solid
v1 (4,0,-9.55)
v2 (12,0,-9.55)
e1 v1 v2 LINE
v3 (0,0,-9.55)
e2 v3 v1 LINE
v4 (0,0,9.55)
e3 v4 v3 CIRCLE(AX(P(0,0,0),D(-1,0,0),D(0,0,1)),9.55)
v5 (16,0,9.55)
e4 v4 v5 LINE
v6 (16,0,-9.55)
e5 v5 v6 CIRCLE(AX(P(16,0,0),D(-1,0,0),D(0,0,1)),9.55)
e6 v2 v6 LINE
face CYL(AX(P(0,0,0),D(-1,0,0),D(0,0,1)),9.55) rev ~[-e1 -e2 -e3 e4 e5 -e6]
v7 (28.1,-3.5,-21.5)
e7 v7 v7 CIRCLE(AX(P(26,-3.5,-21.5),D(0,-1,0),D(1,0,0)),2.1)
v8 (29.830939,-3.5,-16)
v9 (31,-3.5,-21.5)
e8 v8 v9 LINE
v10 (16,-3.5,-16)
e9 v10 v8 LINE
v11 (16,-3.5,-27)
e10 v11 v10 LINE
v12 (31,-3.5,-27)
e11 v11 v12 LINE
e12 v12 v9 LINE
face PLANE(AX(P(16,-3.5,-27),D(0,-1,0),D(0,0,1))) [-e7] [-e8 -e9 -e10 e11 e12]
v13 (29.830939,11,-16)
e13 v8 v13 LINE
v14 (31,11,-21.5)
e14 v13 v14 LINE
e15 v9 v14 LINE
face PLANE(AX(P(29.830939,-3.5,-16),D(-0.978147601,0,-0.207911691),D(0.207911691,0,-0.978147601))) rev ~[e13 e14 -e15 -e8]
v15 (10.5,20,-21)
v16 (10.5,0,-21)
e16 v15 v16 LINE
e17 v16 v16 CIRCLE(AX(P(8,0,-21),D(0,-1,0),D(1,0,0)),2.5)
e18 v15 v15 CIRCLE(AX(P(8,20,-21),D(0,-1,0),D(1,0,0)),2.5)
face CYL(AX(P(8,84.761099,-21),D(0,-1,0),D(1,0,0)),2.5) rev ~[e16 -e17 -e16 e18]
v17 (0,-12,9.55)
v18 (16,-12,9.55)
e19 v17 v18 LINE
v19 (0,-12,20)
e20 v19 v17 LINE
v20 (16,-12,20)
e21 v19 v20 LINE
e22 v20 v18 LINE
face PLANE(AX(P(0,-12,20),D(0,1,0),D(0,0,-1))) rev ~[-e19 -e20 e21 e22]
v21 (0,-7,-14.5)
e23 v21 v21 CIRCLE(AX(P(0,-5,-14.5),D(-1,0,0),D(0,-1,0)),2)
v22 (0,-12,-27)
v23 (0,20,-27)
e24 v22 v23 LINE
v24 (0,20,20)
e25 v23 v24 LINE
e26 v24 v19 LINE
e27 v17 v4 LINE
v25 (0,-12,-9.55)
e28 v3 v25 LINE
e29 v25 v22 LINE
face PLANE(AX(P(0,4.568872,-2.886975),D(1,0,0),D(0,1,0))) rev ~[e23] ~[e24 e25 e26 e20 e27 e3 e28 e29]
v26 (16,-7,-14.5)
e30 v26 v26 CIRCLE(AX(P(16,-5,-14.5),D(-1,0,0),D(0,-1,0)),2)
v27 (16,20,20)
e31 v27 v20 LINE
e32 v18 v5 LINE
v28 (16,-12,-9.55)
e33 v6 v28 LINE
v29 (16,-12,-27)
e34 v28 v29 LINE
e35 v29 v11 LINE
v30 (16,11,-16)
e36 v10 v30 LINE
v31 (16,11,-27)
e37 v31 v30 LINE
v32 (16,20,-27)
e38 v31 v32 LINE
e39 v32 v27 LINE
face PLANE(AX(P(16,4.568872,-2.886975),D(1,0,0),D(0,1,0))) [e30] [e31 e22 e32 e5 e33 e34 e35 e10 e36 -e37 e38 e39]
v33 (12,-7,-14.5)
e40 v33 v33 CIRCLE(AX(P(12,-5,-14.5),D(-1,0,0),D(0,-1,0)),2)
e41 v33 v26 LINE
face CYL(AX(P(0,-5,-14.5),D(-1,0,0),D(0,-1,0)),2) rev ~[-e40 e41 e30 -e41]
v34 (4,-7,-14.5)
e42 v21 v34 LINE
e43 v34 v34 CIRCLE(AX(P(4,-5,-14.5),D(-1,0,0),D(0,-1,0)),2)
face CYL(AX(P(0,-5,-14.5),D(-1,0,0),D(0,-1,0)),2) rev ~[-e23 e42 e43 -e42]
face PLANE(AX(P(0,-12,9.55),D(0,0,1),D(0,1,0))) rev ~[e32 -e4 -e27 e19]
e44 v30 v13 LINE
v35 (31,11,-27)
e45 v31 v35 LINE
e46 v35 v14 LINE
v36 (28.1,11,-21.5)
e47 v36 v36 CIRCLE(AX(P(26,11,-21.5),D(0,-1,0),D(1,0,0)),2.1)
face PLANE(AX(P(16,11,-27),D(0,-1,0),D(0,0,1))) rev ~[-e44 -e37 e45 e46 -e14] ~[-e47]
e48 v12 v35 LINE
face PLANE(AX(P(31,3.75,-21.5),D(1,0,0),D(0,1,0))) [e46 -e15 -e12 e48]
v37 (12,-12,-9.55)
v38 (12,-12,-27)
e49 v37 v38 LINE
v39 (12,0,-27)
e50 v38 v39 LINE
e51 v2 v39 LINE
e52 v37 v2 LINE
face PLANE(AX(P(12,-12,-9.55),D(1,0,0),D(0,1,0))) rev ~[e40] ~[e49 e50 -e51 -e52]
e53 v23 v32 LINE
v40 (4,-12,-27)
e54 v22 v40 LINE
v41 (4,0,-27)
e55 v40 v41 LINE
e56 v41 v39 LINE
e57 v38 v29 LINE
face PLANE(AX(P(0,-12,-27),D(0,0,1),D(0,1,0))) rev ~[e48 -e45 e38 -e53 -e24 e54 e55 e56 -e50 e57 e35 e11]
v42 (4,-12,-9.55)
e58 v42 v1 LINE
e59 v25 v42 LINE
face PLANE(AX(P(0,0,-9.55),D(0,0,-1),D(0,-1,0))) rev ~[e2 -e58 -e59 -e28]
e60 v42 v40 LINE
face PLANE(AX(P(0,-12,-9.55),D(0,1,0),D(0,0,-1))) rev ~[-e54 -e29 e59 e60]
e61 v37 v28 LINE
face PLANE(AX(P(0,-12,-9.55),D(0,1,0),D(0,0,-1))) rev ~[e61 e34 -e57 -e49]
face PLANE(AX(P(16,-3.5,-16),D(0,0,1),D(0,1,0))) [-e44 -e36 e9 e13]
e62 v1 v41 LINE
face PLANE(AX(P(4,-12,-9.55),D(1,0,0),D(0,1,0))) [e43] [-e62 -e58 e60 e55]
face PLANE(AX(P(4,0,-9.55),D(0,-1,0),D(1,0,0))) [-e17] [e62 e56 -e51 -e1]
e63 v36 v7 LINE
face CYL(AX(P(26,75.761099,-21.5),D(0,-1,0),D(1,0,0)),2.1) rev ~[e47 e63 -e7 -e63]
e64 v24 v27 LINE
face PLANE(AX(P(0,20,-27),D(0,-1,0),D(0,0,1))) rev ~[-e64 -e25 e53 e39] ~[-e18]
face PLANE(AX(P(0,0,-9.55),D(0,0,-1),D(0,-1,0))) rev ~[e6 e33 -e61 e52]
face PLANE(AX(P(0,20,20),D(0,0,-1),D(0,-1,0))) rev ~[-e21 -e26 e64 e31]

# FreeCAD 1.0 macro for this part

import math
import FreeCAD as App
import Part
import Sketcher

V = App.Vector
Q = App.Units.Quantity

doc = App.newDocument("Part")
body = doc.addObject("PartDesign::Body", "Body")

sketch1 = body.newObject("Sketcher::SketchObject", "Sketch")
sketch1.AttachmentSupport = (doc.getObject("YZ_Plane"), [""])
sketch1.MapMode = "FlatFace"
sketch1.addGeometry(Part.ArcOfCircle(Part.Circle(V(0, 0, 0), V(0, 0, 1), 10), math.radians(-90), math.radians(90)), False)
sketch1.addGeometry(Part.LineSegment(V(0, -10, 0), V(-12, -10, 0)), False)
sketch1.addGeometry(Part.LineSegment(V(-12, -10, 0), V(-12, -27, 0)), False)
sketch1.addGeometry(Part.LineSegment(V(-12, -27, 0), V(20, -27, 0)), False)
sketch1.addGeometry(Part.LineSegment(V(20, -27, 0), V(20, 20, 0)), False)
sketch1.addGeometry(Part.LineSegment(V(20, 20, 0), V(-12, 20, 0)), False)
sketch1.addGeometry(Part.LineSegment(V(-12, 20, 0), V(-12, 10, 0)), False)
sketch1.addGeometry(Part.LineSegment(V(-12, 10, 0), V(0, 10, 0)), False)
sketch1.addConstraint(Sketcher.Constraint("Tangent", 0, 1, 1, 1))
sketch1.addConstraint(Sketcher.Constraint("Coincident", 1, 2, 2, 1))
sketch1.addConstraint(Sketcher.Constraint("Coincident", 2, 2, 3, 1))
sketch1.addConstraint(Sketcher.Constraint("Coincident", 3, 2, 4, 1))
sketch1.addConstraint(Sketcher.Constraint("Coincident", 4, 2, 5, 1))
sketch1.addConstraint(Sketcher.Constraint("Coincident", 5, 2, 6, 1))
sketch1.addConstraint(Sketcher.Constraint("Coincident", 6, 2, 7, 1))
sketch1.addConstraint(Sketcher.Constraint("Tangent", 7, 2, 0, 2))
sketch1.addConstraint(Sketcher.Constraint("Horizontal", 1))
sketch1.addConstraint(Sketcher.Constraint("Vertical", 2))
sketch1.addConstraint(Sketcher.Constraint("Horizontal", 3))
sketch1.addConstraint(Sketcher.Constraint("Vertical", 4))
sketch1.addConstraint(Sketcher.Constraint("Horizontal", 5))
sketch1.addConstraint(Sketcher.Constraint("Vertical", 6))
sketch1.addConstraint(Sketcher.Constraint("Horizontal", 7))
sketch1.addConstraint(Sketcher.Constraint("Coincident", 0, 3, -1, 1))
sketch1.addConstraint(Sketcher.Constraint("Vertical", 2, 2, 5, 2))
sketch1.addConstraint(Sketcher.Constraint("DistanceX", 1, 2, 1, 1, Q("12 mm")))
sketch1.addConstraint(Sketcher.Constraint("DistanceX", 3, 1, 3, 2, Q("32 mm")))
sketch1.addConstraint(Sketcher.Constraint("DistanceY", 4, 1, 4, 2, Q("47 mm")))
sketch1.addConstraint(Sketcher.Constraint("Radius", 0, Q("9.55 mm")))
sketch1.addConstraint(Sketcher.Constraint("DistanceY", 2, 2, -1, 1, Q("27 mm")))
pad1 = body.newObject("PartDesign::Pad", "Pad")
pad1.Profile = sketch1
pad1.Length = 16

sketch2 = body.newObject("Sketcher::SketchObject", "Sketch001")
sketch2.AttachmentSupport = (doc.getObject("YZ_Plane"), [""])
sketch2.MapMode = "FlatFace"
sketch2.AttachmentOffset = App.Placement(V(0, 0, 16), App.Rotation())
sketch2.addGeometry(Part.LineSegment(V(-4, -16, 0), V(-4, -27, 0)), False)
sketch2.addGeometry(Part.LineSegment(V(-4, -27, 0), V(11, -27, 0)), False)
sketch2.addGeometry(Part.LineSegment(V(11, -27, 0), V(11, -16, 0)), False)
sketch2.addGeometry(Part.LineSegment(V(11, -16, 0), V(-4, -16, 0)), False)
sketch2.addConstraint(Sketcher.Constraint("Coincident", 0, 2, 1, 1))
sketch2.addConstraint(Sketcher.Constraint("Coincident", 1, 2, 2, 1))
sketch2.addConstraint(Sketcher.Constraint("Coincident", 2, 2, 3, 1))
sketch2.addConstraint(Sketcher.Constraint("Coincident", 3, 2, 0, 1))
sketch2.addConstraint(Sketcher.Constraint("Vertical", 0))
sketch2.addConstraint(Sketcher.Constraint("Horizontal", 1))
sketch2.addConstraint(Sketcher.Constraint("Vertical", 2))
sketch2.addConstraint(Sketcher.Constraint("Horizontal", 3))
sketch2.addConstraint(Sketcher.Constraint("DistanceY", 0, 2, 0, 1, Q("11 mm")))
sketch2.addConstraint(Sketcher.Constraint("DistanceX", 1, 1, 1, 2, Q("14.5 mm")))
sketch2.addConstraint(Sketcher.Constraint("DistanceY", 0, 2, -1, 1, Q("27 mm")))
sketch2.addConstraint(Sketcher.Constraint("DistanceX", -1, 1, 1, 2, Q("11 mm")))
pad2 = body.newObject("PartDesign::Pad", "Pad001")
pad2.Profile = sketch2
pad2.Length = 15

sketch3 = body.newObject("Sketcher::SketchObject", "Sketch002")
sketch3.AttachmentSupport = (doc.getObject("XZ_Plane"), [""])
sketch3.MapMode = "FlatFace"
sketch3.AttachmentOffset = App.Placement(V(0, 0, 3.5), App.Rotation())
sketch3.addGeometry(Part.LineSegment(V(29.8, -16, 0), V(31, -21.5, 0)), False)
sketch3.addGeometry(Part.LineSegment(V(31, -21.5, 0), V(31, -16, 0)), False)
sketch3.addGeometry(Part.LineSegment(V(31, -16, 0), V(29.8, -16, 0)), False)
sketch3.addConstraint(Sketcher.Constraint("Coincident", 0, 2, 1, 1))
sketch3.addConstraint(Sketcher.Constraint("Coincident", 1, 2, 2, 1))
sketch3.addConstraint(Sketcher.Constraint("Coincident", 2, 2, 0, 1))
sketch3.addConstraint(Sketcher.Constraint("Vertical", 1))
sketch3.addConstraint(Sketcher.Constraint("Horizontal", 2))
sketch3.addConstraint(Sketcher.Constraint("Angle", 0, Q("-78 deg")))
sketch3.addConstraint(Sketcher.Constraint("DistanceY", 1, 1, 1, 2, Q("5.5 mm")))
sketch3.addConstraint(Sketcher.Constraint("DistanceX", -1, 1, 0, 2, Q("31 mm")))
sketch3.addConstraint(Sketcher.Constraint("DistanceY", 1, 2, -1, 1, Q("16 mm")))
pocket1 = body.newObject("PartDesign::Pocket", "Pocket")
pocket1.Profile = sketch3
pocket1.Type = "ThroughAll"

sketch4 = body.newObject("Sketcher::SketchObject", "Sketch003")
sketch4.AttachmentSupport = (doc.getObject("XZ_Plane"), [""])
sketch4.MapMode = "FlatFace"
sketch4.AttachmentOffset = App.Placement(V(0, 0, -11), App.Rotation())
sketch4.addGeometry(Part.Circle(V(26, -21.5, 0), V(0, 0, 1), 2.1), False)
sketch4.addConstraint(Sketcher.Constraint("Diameter", 0, Q("4.2 mm")))
sketch4.addConstraint(Sketcher.Constraint("DistanceX", -1, 1, 0, 3, Q("26 mm")))
sketch4.addConstraint(Sketcher.Constraint("DistanceY", 0, 3, -1, 1, Q("21.5 mm")))
doc.recompute()
hole = body.newObject("PartDesign::Hole", "Hole")
hole.Profile = sketch4
hole.ThreadType = "None"
hole.Diameter = 4.2
hole.DepthType = "ThroughAll"
hole.Reversed = True

sketch5 = body.newObject("Sketcher::SketchObject", "Sketch004")
sketch5.AttachmentSupport = (doc.getObject("XY_Plane"), [""])
sketch5.MapMode = "FlatFace"
sketch5.AttachmentOffset = App.Placement(V(0, 0, -9.55), App.Rotation())
sketch5.addGeometry(Part.LineSegment(V(4, 0, 0), V(4, -12, 0)), False)
sketch5.addGeometry(Part.LineSegment(V(4, -12, 0), V(12, -12, 0)), False)
sketch5.addGeometry(Part.LineSegment(V(12, -12, 0), V(12, 0, 0)), False)
sketch5.addGeometry(Part.LineSegment(V(12, 0, 0), V(4, 0, 0)), False)
sketch5.addConstraint(Sketcher.Constraint("Coincident", 0, 2, 1, 1))
sketch5.addConstraint(Sketcher.Constraint("Coincident", 1, 2, 2, 1))
sketch5.addConstraint(Sketcher.Constraint("Coincident", 2, 2, 3, 1))
sketch5.addConstraint(Sketcher.Constraint("Coincident", 3, 2, 0, 1))
sketch5.addConstraint(Sketcher.Constraint("Vertical", 0))
sketch5.addConstraint(Sketcher.Constraint("Horizontal", 1))
sketch5.addConstraint(Sketcher.Constraint("Vertical", 2))
sketch5.addConstraint(Sketcher.Constraint("Horizontal", 3))
sketch5.addConstraint(Sketcher.Constraint("PointOnObject", 2, 2, -1))
sketch5.addConstraint(Sketcher.Constraint("DistanceX", 1, 1, 1, 2, Q("8 mm")))
sketch5.addConstraint(Sketcher.Constraint("DistanceY", 0, 2, 0, 1, Q("12 mm")))
sketch5.addConstraint(Sketcher.Constraint("DistanceX", -1, 1, 0, 2, Q("4 mm")))
pocket2 = body.newObject("PartDesign::Pocket", "Pocket001")
pocket2.Profile = sketch5
pocket2.Type = "ThroughAll"

sketch6 = body.newObject("Sketcher::SketchObject", "Sketch005")
sketch6.AttachmentSupport = (doc.getObject("YZ_Plane"), [""])
sketch6.MapMode = "FlatFace"
sketch6.addGeometry(Part.Circle(V(-5, -14.5, 0), V(0, 0, 1), 2), False)
sketch6.addConstraint(Sketcher.Constraint("Diameter", 0, Q("4 mm")))
sketch6.addConstraint(Sketcher.Constraint("DistanceX", 0, 3, -1, 1, Q("5 mm")))
sketch6.addConstraint(Sketcher.Constraint("DistanceY", 0, 3, -1, 1, Q("14.5 mm")))
pocket3 = body.newObject("PartDesign::Pocket", "Pocket002")
pocket3.Profile = sketch6
pocket3.Type = "ThroughAll"
pocket3.Reversed = True

sketch7 = body.newObject("Sketcher::SketchObject", "Sketch006")
sketch7.AttachmentSupport = (doc.getObject("XZ_Plane"), [""])
sketch7.MapMode = "FlatFace"
sketch7.AttachmentOffset = App.Placement(V(0, 0, -20), App.Rotation())
sketch7.addGeometry(Part.Circle(V(8, -21, 0), V(0, 0, 1), 2.5), False)
sketch7.addConstraint(Sketcher.Constraint("Diameter", 0, Q("5 mm")))
sketch7.addConstraint(Sketcher.Constraint("DistanceX", -1, 1, 0, 3, Q("8 mm")))
sketch7.addConstraint(Sketcher.Constraint("DistanceY", 0, 3, -1, 1, Q("21 mm")))
doc.recompute()
hole2 = body.newObject("PartDesign::Hole", "Hole001")
hole2.Profile = sketch7
hole2.ThreadType = "None"
hole2.Diameter = 5
hole2.DepthType = "ThroughAll"
hole2.Reversed = True

doc.recompute()
